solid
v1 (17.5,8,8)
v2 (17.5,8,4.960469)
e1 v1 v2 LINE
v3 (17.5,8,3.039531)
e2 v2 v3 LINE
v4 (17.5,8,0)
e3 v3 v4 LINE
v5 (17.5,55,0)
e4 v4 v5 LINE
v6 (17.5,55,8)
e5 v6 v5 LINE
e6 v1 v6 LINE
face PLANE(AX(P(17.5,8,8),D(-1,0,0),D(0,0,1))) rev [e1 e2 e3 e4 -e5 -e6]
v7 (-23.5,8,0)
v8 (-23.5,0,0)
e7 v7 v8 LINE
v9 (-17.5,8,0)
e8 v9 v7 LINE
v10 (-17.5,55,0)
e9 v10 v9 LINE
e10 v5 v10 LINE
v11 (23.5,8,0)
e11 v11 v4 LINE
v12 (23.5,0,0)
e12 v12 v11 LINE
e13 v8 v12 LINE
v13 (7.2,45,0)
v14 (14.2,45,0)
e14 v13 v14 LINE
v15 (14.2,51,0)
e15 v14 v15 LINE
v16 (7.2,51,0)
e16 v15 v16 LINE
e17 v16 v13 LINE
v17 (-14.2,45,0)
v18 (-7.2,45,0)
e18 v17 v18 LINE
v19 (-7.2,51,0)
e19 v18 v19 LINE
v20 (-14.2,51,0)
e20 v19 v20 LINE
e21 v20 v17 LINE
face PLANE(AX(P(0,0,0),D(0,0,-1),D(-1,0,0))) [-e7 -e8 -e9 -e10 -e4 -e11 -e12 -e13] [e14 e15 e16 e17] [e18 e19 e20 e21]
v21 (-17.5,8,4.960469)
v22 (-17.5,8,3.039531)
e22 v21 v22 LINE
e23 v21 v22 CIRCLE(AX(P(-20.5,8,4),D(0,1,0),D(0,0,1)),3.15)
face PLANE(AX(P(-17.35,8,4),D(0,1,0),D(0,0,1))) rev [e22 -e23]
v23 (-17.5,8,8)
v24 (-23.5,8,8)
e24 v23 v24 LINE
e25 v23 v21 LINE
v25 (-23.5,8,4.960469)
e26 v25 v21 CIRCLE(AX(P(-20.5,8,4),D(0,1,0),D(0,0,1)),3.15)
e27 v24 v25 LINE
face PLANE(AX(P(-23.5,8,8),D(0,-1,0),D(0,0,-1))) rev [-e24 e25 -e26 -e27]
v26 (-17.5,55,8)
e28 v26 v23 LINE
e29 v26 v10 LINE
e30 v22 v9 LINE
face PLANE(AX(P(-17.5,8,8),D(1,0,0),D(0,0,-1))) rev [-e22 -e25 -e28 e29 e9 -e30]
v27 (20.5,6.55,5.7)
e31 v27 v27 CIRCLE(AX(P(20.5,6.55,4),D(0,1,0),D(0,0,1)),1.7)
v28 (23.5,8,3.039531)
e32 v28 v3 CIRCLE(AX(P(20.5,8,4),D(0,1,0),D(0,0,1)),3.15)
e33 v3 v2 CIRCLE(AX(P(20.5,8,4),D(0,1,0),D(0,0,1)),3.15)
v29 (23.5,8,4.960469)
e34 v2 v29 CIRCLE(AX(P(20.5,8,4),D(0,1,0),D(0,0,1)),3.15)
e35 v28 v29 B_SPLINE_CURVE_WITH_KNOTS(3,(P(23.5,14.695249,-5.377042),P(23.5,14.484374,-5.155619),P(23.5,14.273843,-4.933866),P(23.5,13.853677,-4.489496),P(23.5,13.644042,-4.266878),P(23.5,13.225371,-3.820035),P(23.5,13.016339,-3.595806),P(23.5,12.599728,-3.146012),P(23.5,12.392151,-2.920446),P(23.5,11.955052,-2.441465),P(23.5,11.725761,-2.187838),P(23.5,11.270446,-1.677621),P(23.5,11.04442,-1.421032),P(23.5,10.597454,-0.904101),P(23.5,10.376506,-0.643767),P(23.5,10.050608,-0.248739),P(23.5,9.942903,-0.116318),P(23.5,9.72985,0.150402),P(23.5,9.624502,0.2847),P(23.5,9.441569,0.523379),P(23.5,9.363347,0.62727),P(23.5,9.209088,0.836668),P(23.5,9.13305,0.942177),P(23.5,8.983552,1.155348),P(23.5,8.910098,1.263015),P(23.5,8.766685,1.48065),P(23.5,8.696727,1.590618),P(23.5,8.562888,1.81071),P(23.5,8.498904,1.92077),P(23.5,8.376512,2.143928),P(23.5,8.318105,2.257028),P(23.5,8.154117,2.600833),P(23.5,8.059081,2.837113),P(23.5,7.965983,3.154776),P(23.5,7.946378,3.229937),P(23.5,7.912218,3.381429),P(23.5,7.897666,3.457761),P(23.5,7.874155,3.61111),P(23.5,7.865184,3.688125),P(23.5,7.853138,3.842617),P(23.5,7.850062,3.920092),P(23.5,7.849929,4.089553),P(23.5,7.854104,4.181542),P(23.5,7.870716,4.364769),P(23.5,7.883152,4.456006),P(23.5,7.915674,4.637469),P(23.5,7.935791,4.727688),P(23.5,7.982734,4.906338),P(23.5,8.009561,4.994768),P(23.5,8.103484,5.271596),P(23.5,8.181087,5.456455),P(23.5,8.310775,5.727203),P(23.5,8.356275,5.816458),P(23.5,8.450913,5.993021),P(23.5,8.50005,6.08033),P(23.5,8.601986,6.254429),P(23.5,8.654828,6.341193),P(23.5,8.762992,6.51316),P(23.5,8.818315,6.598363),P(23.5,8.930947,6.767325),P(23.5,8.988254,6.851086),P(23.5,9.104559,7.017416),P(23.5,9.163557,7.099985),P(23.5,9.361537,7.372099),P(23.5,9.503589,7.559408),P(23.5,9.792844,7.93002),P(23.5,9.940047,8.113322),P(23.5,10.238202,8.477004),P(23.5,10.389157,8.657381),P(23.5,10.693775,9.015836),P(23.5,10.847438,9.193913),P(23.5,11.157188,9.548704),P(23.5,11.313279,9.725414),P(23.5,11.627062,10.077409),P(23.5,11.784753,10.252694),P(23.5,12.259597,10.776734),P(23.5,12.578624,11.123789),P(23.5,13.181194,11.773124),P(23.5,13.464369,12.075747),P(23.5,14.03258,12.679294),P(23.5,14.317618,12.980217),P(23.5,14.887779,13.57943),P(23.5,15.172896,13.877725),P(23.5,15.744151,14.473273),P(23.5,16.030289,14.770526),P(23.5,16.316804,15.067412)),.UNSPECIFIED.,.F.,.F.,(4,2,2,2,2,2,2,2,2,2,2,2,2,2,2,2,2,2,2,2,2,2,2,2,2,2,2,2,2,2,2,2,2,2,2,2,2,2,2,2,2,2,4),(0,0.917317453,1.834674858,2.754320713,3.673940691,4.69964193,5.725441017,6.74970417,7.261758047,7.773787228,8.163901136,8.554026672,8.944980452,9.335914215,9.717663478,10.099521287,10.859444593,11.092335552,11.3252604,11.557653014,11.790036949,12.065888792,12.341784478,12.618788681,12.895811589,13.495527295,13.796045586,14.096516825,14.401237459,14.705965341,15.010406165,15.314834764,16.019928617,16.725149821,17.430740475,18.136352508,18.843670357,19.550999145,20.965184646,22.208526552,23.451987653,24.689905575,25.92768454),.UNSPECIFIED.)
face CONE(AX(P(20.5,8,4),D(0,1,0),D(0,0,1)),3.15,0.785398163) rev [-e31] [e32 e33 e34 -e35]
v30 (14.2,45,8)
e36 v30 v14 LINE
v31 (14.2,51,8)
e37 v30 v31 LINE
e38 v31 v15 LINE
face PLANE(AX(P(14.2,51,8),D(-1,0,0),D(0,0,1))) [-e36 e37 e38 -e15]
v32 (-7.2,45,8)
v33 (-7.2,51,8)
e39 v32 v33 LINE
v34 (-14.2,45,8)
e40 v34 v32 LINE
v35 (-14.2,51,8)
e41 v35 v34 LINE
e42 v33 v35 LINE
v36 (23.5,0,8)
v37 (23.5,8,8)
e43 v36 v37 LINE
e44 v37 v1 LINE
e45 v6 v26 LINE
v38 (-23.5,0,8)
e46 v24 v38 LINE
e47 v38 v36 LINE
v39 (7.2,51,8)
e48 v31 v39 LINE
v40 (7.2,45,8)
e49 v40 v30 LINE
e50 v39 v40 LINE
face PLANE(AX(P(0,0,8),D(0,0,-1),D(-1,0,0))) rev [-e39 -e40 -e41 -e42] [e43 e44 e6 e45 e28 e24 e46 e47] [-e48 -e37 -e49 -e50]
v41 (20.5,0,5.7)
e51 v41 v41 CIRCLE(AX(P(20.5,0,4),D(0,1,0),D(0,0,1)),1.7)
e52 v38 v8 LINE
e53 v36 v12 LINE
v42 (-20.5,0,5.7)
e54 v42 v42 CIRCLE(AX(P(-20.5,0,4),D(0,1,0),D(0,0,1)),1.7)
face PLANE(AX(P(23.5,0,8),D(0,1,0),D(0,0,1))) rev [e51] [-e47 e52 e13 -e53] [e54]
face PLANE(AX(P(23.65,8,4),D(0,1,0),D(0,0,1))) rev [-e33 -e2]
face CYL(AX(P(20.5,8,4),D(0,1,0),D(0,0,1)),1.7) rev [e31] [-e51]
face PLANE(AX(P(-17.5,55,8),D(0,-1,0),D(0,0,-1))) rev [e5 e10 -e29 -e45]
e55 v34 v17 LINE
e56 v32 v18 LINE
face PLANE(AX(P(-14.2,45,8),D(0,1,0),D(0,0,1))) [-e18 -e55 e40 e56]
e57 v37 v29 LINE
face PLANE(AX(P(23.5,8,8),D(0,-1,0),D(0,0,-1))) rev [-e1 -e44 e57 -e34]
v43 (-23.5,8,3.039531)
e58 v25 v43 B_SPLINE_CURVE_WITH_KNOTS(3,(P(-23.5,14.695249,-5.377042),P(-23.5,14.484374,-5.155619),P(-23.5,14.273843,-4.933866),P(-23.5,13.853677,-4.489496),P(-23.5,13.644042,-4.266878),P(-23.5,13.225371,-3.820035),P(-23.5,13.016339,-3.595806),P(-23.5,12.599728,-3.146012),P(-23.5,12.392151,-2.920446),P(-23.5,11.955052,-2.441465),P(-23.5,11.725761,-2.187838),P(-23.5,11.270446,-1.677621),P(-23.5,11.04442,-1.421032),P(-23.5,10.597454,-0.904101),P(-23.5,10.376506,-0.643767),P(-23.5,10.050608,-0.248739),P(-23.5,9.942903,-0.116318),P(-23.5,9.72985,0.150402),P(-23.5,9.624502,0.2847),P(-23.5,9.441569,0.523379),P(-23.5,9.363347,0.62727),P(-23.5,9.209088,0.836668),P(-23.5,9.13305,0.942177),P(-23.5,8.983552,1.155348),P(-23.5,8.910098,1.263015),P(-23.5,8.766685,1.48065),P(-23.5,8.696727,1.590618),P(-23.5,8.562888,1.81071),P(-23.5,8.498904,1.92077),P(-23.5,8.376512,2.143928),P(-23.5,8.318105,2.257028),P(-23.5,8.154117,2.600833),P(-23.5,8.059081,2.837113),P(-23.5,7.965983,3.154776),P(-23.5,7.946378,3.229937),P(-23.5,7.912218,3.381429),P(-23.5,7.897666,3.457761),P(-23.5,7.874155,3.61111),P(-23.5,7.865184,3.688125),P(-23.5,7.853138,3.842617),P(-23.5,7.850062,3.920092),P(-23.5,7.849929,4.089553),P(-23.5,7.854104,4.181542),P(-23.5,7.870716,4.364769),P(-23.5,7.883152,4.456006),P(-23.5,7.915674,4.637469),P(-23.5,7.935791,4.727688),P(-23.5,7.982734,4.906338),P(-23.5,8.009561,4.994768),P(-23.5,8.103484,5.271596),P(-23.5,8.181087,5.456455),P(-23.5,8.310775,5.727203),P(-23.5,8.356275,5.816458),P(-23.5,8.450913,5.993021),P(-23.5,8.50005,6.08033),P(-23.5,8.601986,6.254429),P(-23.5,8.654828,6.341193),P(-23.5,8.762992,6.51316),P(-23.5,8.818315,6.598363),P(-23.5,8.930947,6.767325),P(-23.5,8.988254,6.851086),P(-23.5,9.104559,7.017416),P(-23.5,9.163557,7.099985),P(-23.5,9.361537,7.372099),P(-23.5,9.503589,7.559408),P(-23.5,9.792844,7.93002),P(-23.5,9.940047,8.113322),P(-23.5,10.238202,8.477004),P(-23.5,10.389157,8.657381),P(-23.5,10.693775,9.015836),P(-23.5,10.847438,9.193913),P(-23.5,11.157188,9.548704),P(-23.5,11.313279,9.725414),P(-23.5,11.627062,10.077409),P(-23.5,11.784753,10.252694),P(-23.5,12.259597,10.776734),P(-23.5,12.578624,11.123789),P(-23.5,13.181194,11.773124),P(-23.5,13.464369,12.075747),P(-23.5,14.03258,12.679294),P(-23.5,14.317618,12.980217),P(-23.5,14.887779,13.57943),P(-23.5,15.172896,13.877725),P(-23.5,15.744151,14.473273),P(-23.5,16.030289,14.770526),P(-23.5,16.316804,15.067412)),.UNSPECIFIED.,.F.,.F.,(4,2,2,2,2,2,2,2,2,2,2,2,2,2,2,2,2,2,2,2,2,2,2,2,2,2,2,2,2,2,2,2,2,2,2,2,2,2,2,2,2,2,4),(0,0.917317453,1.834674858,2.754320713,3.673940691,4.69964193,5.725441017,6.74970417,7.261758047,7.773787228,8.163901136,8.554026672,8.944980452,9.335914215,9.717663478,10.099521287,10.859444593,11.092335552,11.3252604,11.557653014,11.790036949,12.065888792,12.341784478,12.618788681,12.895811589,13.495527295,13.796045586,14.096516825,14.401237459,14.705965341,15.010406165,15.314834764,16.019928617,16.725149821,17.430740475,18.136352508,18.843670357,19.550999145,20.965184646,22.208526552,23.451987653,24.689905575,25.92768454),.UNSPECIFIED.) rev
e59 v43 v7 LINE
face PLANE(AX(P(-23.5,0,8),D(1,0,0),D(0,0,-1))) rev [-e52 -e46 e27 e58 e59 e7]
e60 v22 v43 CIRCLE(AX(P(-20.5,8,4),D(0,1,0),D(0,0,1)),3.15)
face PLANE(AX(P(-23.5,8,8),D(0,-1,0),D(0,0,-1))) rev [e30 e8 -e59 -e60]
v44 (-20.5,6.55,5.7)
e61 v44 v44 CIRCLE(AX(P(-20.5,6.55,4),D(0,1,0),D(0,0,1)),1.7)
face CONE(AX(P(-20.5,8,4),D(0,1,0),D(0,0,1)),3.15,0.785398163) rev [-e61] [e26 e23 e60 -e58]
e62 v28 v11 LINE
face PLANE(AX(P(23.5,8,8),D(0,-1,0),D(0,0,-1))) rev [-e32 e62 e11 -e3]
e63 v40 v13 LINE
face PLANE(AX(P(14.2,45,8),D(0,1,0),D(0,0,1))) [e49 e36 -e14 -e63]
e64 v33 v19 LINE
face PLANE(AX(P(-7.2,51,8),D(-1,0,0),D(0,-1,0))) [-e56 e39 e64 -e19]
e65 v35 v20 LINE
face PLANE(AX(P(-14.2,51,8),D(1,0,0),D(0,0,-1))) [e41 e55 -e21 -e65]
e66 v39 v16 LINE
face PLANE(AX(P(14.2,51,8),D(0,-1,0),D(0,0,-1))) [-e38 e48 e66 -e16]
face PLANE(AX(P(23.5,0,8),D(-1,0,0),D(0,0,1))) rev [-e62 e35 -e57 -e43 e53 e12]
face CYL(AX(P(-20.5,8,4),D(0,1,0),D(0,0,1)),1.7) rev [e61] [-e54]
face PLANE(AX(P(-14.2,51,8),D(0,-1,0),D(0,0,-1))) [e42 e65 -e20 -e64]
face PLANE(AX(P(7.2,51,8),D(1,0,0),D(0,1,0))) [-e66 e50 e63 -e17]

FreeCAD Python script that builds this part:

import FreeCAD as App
import Part
import Sketcher
from FreeCAD import Vector
Q = App.Units.Quantity


def add_polygon(sketch, points):
    """Adds a closed chain of lines whose ends are joined by coincident constraints."""
    first, n = sketch.GeometryCount, len(points)
    for a, b in zip(points, points[1:] + points[:1]):
        sketch.addGeometry(Part.LineSegment(App.Vector(*a, 0), App.Vector(*b, 0)), False)
    for i in range(n):
        sketch.addConstraint(Sketcher.Constraint("Coincident", first + i, 2, first + (i + 1) % n, 1))

doc = App.newDocument("Part")
body = doc.addObject("PartDesign::Body", "Body")

# Sketch on XY plane
sketch1 = body.newObject("Sketcher::SketchObject", "Sketch")
sketch1.AttachmentSupport = (doc.getObject("XY_Plane"), [""])
sketch1.MapMode = "FlatFace"
add_polygon(sketch1, [(-24, 0), (24, 0), (24, 8), (18, 8), (18, 55), (-18, 55), (-18, 8), (-24, 8)])  # lines 0-7
add_polygon(sketch1, [(7, 45), (7, 51), (14, 51), (14, 45)])  # lines 8-11
add_polygon(sketch1, [(-14, 45), (-14, 51), (-7, 51), (-7, 45)])  # lines 12-15
sketch1.addConstraint([
    Sketcher.Constraint("Horizontal", 0),
    Sketcher.Constraint("Vertical", 1),
    Sketcher.Constraint("Horizontal", 2),
    Sketcher.Constraint("Vertical", 3),
    Sketcher.Constraint("Horizontal", 4),
    Sketcher.Constraint("Vertical", 5),
    Sketcher.Constraint("Horizontal", 6),
    Sketcher.Constraint("Vertical", 7),
    Sketcher.Constraint("Vertical", 8),
    Sketcher.Constraint("Horizontal", 9),
    Sketcher.Constraint("Vertical", 10),
    Sketcher.Constraint("Horizontal", 11),
    Sketcher.Constraint("Vertical", 12),
    Sketcher.Constraint("Horizontal", 13),
    Sketcher.Constraint("Vertical", 14),
    Sketcher.Constraint("Horizontal", 15),
    Sketcher.Constraint("Symmetric", 0, 2, 7, 2, -1, 1),
    Sketcher.Constraint("Symmetric", 2, 2, 5, 2, -2),
    Sketcher.Constraint("Symmetric", 9, 2, 12, 2, -2),
    Sketcher.Constraint("Symmetric", 11, 2, 14, 2, -2),
    Sketcher.Constraint("Equal", 0, 3),
    Sketcher.Constraint("Equal", 6, 8),
    Sketcher.Constraint("DistanceX", 0, 1, 0, 2, Q("47 mm")),
    Sketcher.Constraint("DistanceX", 2, 2, 2, 1, Q("6 mm")),
    Sketcher.Constraint("DistanceX", 9, 1, 9, 2, Q("7 mm")),
    Sketcher.Constraint("DistanceY", 1, 1, 1, 2, Q("8 mm")),
    Sketcher.Constraint("DistanceY", -1, 1, 8, 2, Q("51 mm")),
    Sketcher.Constraint("DistanceX", -1, 1, 8, 2, Q("7.2 mm")),
])
pad1 = body.newObject("PartDesign::Pad", "Pad")
pad1.Profile = sketch1
pad1.Length = 8

# Sketch on YZ plane
sketch2 = body.newObject("Sketcher::SketchObject", "Sketch001")
sketch2.AttachmentSupport = (doc.getObject("YZ_Plane"), [""])
sketch2.MapMode = "FlatFace"
sketch2.AttachmentOffset = App.Placement(Vector(0, 0, -20.5), App.Rotation())
add_polygon(sketch2, [(0, 4), (8, 4), (8, 7.2), (6.5, 5.7), (0, 5.7)])  # lines 0-4
sketch2.addGeometry(Part.LineSegment(Vector(8, 4, 0), Vector(0, 4, 0)), True)  # axis
sketch2.addConstraint([
    Sketcher.Constraint("Horizontal", 0),
    Sketcher.Constraint("Vertical", 1),
    Sketcher.Constraint("Horizontal", 3),
    Sketcher.Constraint("Vertical", 4),
    Sketcher.Constraint("Horizontal", 5),
    Sketcher.Constraint("Coincident", 5, 1, 0, 2),
    Sketcher.Constraint("PointOnObject", 3, 2, -2),
    Sketcher.Constraint("PointOnObject", 5, 2, -2),
    Sketcher.Constraint("DistanceX", 0, 1, 0, 2, Q("8 mm")),
    Sketcher.Constraint("Angle", 2, Q("-135 deg")),
    Sketcher.Constraint("DistanceY", 4, 2, 4, 1, Q("1.7 mm")),
    Sketcher.Constraint("DistanceY", -1, 1, 0, 2, Q("4 mm")),
    Sketcher.Constraint("DistanceX", 3, 2, 3, 1, Q("6.55 mm")),
])
groove = body.newObject("PartDesign::Groove", "Groove")
groove.Profile = sketch2
groove.ReferenceAxis = (sketch2, ["Axis0"])
groove.Angle = 360
doc.recompute()

linearpattern = body.newObject("PartDesign::LinearPattern", "LinearPattern")
linearpattern.Originals = [groove]
linearpattern.Direction = (doc.getObject("X_Axis"), [""])
linearpattern.Mode = "offset"
linearpattern.Offset = 41
linearpattern.Occurrences = 2
body.Tip = linearpattern

doc.recompute()
